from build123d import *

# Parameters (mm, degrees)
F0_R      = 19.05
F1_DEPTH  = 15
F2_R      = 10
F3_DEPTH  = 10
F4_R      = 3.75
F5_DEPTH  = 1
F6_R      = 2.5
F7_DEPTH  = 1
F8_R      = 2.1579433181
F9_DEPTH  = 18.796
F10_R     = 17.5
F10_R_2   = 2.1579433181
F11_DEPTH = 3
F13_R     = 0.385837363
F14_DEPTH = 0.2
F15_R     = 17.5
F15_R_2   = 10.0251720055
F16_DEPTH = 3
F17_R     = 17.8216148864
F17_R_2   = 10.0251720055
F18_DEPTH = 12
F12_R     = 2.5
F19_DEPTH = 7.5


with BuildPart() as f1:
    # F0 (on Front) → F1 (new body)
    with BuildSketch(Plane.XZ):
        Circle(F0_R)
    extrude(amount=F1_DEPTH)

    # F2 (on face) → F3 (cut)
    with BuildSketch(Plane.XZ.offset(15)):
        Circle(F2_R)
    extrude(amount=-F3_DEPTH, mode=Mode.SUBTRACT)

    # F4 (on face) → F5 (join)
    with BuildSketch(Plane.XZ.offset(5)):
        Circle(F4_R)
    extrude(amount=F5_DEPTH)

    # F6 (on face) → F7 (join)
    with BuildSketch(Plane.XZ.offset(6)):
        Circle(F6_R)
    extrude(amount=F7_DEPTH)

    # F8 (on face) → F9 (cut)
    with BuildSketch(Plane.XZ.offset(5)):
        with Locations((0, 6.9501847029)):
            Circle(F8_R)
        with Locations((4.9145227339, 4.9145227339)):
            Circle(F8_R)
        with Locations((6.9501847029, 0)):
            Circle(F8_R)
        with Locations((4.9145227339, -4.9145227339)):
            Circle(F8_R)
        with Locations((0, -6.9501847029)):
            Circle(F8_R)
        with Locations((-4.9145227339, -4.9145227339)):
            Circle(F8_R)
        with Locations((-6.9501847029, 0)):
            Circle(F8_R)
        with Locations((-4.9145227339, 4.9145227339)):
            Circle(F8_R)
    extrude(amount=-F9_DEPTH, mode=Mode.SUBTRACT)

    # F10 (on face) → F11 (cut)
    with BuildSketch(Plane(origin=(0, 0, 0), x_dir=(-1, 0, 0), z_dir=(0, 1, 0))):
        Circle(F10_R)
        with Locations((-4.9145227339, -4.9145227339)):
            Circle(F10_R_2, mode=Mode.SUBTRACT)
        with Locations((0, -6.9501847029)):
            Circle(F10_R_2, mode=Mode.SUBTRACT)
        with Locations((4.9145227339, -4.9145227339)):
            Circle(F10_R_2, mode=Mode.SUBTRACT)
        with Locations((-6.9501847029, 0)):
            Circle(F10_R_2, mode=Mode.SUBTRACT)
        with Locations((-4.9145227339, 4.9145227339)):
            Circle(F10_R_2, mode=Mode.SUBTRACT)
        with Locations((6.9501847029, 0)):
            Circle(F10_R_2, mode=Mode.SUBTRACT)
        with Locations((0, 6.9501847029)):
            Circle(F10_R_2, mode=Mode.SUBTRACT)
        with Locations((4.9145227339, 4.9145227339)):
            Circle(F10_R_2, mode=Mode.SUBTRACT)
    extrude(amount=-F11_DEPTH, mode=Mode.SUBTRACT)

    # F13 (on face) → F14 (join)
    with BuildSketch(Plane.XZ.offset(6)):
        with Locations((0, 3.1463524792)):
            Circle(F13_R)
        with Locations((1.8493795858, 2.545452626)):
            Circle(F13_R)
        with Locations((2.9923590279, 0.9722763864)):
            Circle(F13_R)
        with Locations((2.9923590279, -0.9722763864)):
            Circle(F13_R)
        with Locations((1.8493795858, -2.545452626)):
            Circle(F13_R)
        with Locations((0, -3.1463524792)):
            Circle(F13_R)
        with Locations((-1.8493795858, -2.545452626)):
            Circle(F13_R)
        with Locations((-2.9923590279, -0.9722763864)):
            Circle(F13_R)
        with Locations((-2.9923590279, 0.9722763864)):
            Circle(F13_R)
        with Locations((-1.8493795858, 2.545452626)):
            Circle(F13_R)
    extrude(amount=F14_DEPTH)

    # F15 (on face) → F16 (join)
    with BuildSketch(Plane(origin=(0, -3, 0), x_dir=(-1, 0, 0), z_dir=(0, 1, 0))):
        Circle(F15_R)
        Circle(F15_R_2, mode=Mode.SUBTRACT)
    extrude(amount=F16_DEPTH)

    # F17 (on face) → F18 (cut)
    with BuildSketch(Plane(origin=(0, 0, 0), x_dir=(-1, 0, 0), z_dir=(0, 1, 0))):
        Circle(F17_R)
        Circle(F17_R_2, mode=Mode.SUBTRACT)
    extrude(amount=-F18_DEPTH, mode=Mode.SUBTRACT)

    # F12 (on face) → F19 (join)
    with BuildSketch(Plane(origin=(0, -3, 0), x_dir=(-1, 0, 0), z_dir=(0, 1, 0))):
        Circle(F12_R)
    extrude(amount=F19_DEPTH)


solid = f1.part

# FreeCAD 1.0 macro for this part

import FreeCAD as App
import Part
import Sketcher
from FreeCAD import Vector
Q = App.Units.Quantity

doc = App.newDocument("Part")
body = doc.addObject("PartDesign::Body", "Body")

# Sketch on XZ plane
sketch1 = body.newObject("Sketcher::SketchObject", "Sketch")
sketch1.AttachmentSupport = (doc.getObject("XZ_Plane"), [""])
sketch1.MapMode = "FlatFace"
sketch1.addGeometry(Part.Circle(Vector(0, 0, 0), Vector(0, 0, 1), 19), False)
sketch1.addConstraint([
    Sketcher.Constraint("Coincident", 0, 3, -1, 1),
    Sketcher.Constraint("Diameter", 0, Q("38.1 mm")),
])
pad1 = body.newObject("PartDesign::Pad", "Pad")
pad1.Profile = sketch1
pad1.Length = 15

# Sketch on XZ plane
sketch2 = body.newObject("Sketcher::SketchObject", "Sketch001")
sketch2.AttachmentSupport = (doc.getObject("XZ_Plane"), [""])
sketch2.MapMode = "FlatFace"
sketch2.AttachmentOffset = App.Placement(Vector(0, 0, 15), App.Rotation())
sketch2.addGeometry(Part.Circle(Vector(0, 0, 0), Vector(0, 0, 1), 10), False)
sketch2.addConstraint([
    Sketcher.Constraint("Coincident", 0, 3, -1, 1),
    Sketcher.Constraint("Diameter", 0, Q("20 mm")),
])
pocket1 = body.newObject("PartDesign::Pocket", "Pocket")
pocket1.Profile = sketch2
pocket1.Length = 10

# Sketch on XZ plane
sketch3 = body.newObject("Sketcher::SketchObject", "Sketch002")
sketch3.AttachmentSupport = (doc.getObject("XZ_Plane"), [""])
sketch3.MapMode = "FlatFace"
sketch3.AttachmentOffset = App.Placement(Vector(0, 0, 5), App.Rotation())
sketch3.addGeometry(Part.Circle(Vector(0, 0, 0), Vector(0, 0, 1), 3.8), False)
sketch3.addConstraint([
    Sketcher.Constraint("Coincident", 0, 3, -1, 1),
    Sketcher.Constraint("Diameter", 0, Q("7.5 mm")),
])
pad2 = body.newObject("PartDesign::Pad", "Pad001")
pad2.Profile = sketch3
pad2.Length = 1

# Sketch on XZ plane
sketch4 = body.newObject("Sketcher::SketchObject", "Sketch003")
sketch4.AttachmentSupport = (doc.getObject("XZ_Plane"), [""])
sketch4.MapMode = "FlatFace"
sketch4.AttachmentOffset = App.Placement(Vector(0, 0, 6), App.Rotation())
sketch4.addGeometry(Part.Circle(Vector(0, 0, 0), Vector(0, 0, 1), 2.5), False)
sketch4.addConstraint([
    Sketcher.Constraint("Coincident", 0, 3, -1, 1),
    Sketcher.Constraint("Diameter", 0, Q("5 mm")),
])
pad3 = body.newObject("PartDesign::Pad", "Pad002")
pad3.Profile = sketch4
pad3.Length = 1

# Sketch on XZ plane
sketch5 = body.newObject("Sketcher::SketchObject", "Sketch004")
sketch5.AttachmentSupport = (doc.getObject("XZ_Plane"), [""])
sketch5.MapMode = "FlatFace"
sketch5.AttachmentOffset = App.Placement(Vector(0, 0, 5), App.Rotation())
sketch5.addGeometry([
    Part.Circle(Vector(0, 7, 0), Vector(0, 0, 1), 2.2),  # 0
    Part.Circle(Vector(4.9, 4.9, 0), Vector(0, 0, 1), 2.2),  # 1
    Part.Circle(Vector(7, 0, 0), Vector(0, 0, 1), 2.2),  # 2
    Part.Circle(Vector(4.9, -4.9, 0), Vector(0, 0, 1), 2.2),  # 3
    Part.Circle(Vector(0, -7, 0), Vector(0, 0, 1), 2.2),  # 4
    Part.Circle(Vector(-4.9, -4.9, 0), Vector(0, 0, 1), 2.2),  # 5
    Part.Circle(Vector(-7, 0, 0), Vector(0, 0, 1), 2.2),  # 6
    Part.Circle(Vector(-4.9, 4.9, 0), Vector(0, 0, 1), 2.2),  # 7
], False)
sketch5.addConstraint([
    Sketcher.Constraint("Equal", 0, 1),
    Sketcher.Constraint("Equal", 1, 2),
    Sketcher.Constraint("Equal", 2, 3),
    Sketcher.Constraint("Equal", 3, 4),
    Sketcher.Constraint("Equal", 4, 5),
    Sketcher.Constraint("Equal", 5, 6),
    Sketcher.Constraint("Equal", 6, 7),
    Sketcher.Constraint("Symmetric", 0, 3, 4, 3, -1, 1),
    Sketcher.Constraint("Symmetric", 1, 3, 5, 3, -1, 1),
    Sketcher.Constraint("Symmetric", 2, 3, 6, 3, -1, 1),
    Sketcher.Constraint("Symmetric", 3, 3, 7, 3, -1, 1),
    Sketcher.Constraint("Symmetric", 3, 3, 5, 3, -2),
    Sketcher.Constraint("PointOnObject", 0, 3, -2),
    Sketcher.Constraint("PointOnObject", 2, 3, -1),
    Sketcher.Constraint("Diameter", 0, Q("4.315887 mm")),
    Sketcher.Constraint("DistanceY", 1, 3, 0, 3, Q("2.035662 mm")),
    Sketcher.Constraint("DistanceX", 1, 3, 2, 3, Q("2.035662 mm")),
    Sketcher.Constraint("DistanceY", 4, 3, 0, 3, Q("13.900369 mm")),
    Sketcher.Constraint("DistanceX", -1, 1, 1, 3, Q("4.914523 mm")),
])
pocket2 = body.newObject("PartDesign::Pocket", "Pocket001")
pocket2.Profile = sketch5
pocket2.Length = 18.796

# Sketch on XZ plane
sketch6 = body.newObject("Sketcher::SketchObject", "Sketch005")
sketch6.AttachmentSupport = (doc.getObject("XZ_Plane"), [""])
sketch6.MapMode = "FlatFace"
sketch6.addGeometry([
    Part.Circle(Vector(0, 0, 0), Vector(0, 0, 1), 17.5),  # 0
    Part.Circle(Vector(4.9, -4.9, 0), Vector(0, 0, 1), 2.2),  # 1
    Part.Circle(Vector(0, -7, 0), Vector(0, 0, 1), 2.2),  # 2
    Part.Circle(Vector(-4.9, -4.9, 0), Vector(0, 0, 1), 2.2),  # 3
    Part.Circle(Vector(7, 0, 0), Vector(0, 0, 1), 2.2),  # 4
    Part.Circle(Vector(4.9, 4.9, 0), Vector(0, 0, 1), 2.2),  # 5
    Part.Circle(Vector(-7, 0, 0), Vector(0, 0, 1), 2.2),  # 6
    Part.Circle(Vector(0, 7, 0), Vector(0, 0, 1), 2.2),  # 7
    Part.Circle(Vector(-4.9, 4.9, 0), Vector(0, 0, 1), 2.2),  # 8
], False)
sketch6.addConstraint([
    Sketcher.Constraint("Coincident", 0, 3, -1, 1),
    Sketcher.Constraint("Equal", 1, 2),
    Sketcher.Constraint("Equal", 2, 3),
    Sketcher.Constraint("Equal", 3, 4),
    Sketcher.Constraint("Equal", 4, 5),
    Sketcher.Constraint("Equal", 5, 6),
    Sketcher.Constraint("Equal", 6, 7),
    Sketcher.Constraint("Equal", 7, 8),
    Sketcher.Constraint("Symmetric", 3, 3, 5, 3, -1, 1),
    Sketcher.Constraint("Symmetric", 4, 3, 6, 3, -1, 1),
    Sketcher.Constraint("Symmetric", 2, 3, 7, 3, -1, 1),
    Sketcher.Constraint("Symmetric", 1, 3, 8, 3, -1, 1),
    Sketcher.Constraint("Symmetric", 1, 3, 3, 3, -2),
    Sketcher.Constraint("PointOnObject", 2, 3, -2),
    Sketcher.Constraint("PointOnObject", 4, 3, -1),
    Sketcher.Constraint("Diameter", 0, Q("35 mm")),
    Sketcher.Constraint("Diameter", 1, Q("4.315887 mm")),
    Sketcher.Constraint("DistanceY", 2, 3, 1, 3, Q("2.035662 mm")),
    Sketcher.Constraint("DistanceX", 1, 3, 4, 3, Q("2.035662 mm")),
    Sketcher.Constraint("DistanceX", -1, 1, 1, 3, Q("4.914523 mm")),
    Sketcher.Constraint("DistanceY", 1, 3, -1, 1, Q("4.914523 mm")),
])
pocket3 = body.newObject("PartDesign::Pocket", "Pocket002")
pocket3.Profile = sketch6
pocket3.Length = 3
pocket3.Reversed = True

# Sketch on XZ plane
sketch7 = body.newObject("Sketcher::SketchObject", "Sketch006")
sketch7.AttachmentSupport = (doc.getObject("XZ_Plane"), [""])
sketch7.MapMode = "FlatFace"
sketch7.AttachmentOffset = App.Placement(Vector(0, 0, 6), App.Rotation())
sketch7.addGeometry([
    Part.Circle(Vector(0, 3.15, 0), Vector(0, 0, 1), 0.39),  # 0
    Part.Circle(Vector(1.85, 2.55, 0), Vector(0, 0, 1), 0.39),  # 1
    Part.Circle(Vector(2.99, 0.97, 0), Vector(0, 0, 1), 0.39),  # 2
    Part.Circle(Vector(2.99, -0.97, 0), Vector(0, 0, 1), 0.39),  # 3
    Part.Circle(Vector(1.85, -2.55, 0), Vector(0, 0, 1), 0.39),  # 4
    Part.Circle(Vector(0, -3.15, 0), Vector(0, 0, 1), 0.39),  # 5
    Part.Circle(Vector(-1.85, -2.55, 0), Vector(0, 0, 1), 0.39),  # 6
    Part.Circle(Vector(-2.99, -0.97, 0), Vector(0, 0, 1), 0.39),  # 7
    Part.Circle(Vector(-2.99, 0.97, 0), Vector(0, 0, 1), 0.39),  # 8
    Part.Circle(Vector(-1.85, 2.55, 0), Vector(0, 0, 1), 0.39),  # 9
], False)
sketch7.addConstraint([
    Sketcher.Constraint("Equal", 0, 1),
    Sketcher.Constraint("Equal", 1, 2),
    Sketcher.Constraint("Equal", 2, 3),
    Sketcher.Constraint("Equal", 3, 4),
    Sketcher.Constraint("Equal", 4, 5),
    Sketcher.Constraint("Equal", 5, 6),
    Sketcher.Constraint("Equal", 6, 7),
    Sketcher.Constraint("Equal", 7, 8),
    Sketcher.Constraint("Equal", 8, 9),
    Sketcher.Constraint("Symmetric", 0, 3, 5, 3, -1, 1),
    Sketcher.Constraint("Symmetric", 1, 3, 6, 3, -1, 1),
    Sketcher.Constraint("Symmetric", 2, 3, 7, 3, -1, 1),
    Sketcher.Constraint("Symmetric", 3, 3, 8, 3, -1, 1),
    Sketcher.Constraint("Symmetric", 4, 3, 9, 3, -1, 1),
    Sketcher.Constraint("Symmetric", 4, 3, 6, 3, -2),
    Sketcher.Constraint("Symmetric", 3, 3, 7, 3, -2),
    Sketcher.Constraint("PointOnObject", 0, 3, -2),
    Sketcher.Constraint("Diameter", 0, Q("0.771675 mm")),
    Sketcher.Constraint("DistanceY", 1, 3, 0, 3, Q("0.6009 mm")),
    Sketcher.Constraint("DistanceX", -1, 1, 1, 3, Q("1.84938 mm")),
    Sketcher.Constraint("DistanceX", -1, 1, 2, 3, Q("2.992359 mm")),
    Sketcher.Constraint("DistanceY", 3, 3, 1, 3, Q("3.517729 mm")),
    Sketcher.Constraint("DistanceY", -1, 1, 0, 3, Q("3.146352 mm")),
])
pad4 = body.newObject("PartDesign::Pad", "Pad003")
pad4.Profile = sketch7
pad4.Length = 0.2

# Sketch on XZ plane
sketch8 = body.newObject("Sketcher::SketchObject", "Sketch007")
sketch8.AttachmentSupport = (doc.getObject("XZ_Plane"), [""])
sketch8.MapMode = "FlatFace"
sketch8.AttachmentOffset = App.Placement(Vector(0, 0, 3), App.Rotation())
sketch8.addGeometry([
    Part.Circle(Vector(0, 0, 0), Vector(0, 0, 1), 18),
    Part.Circle(Vector(0, 0, 0), Vector(0, 0, 1), 10),
], False)
sketch8.addConstraint([
    Sketcher.Constraint("Coincident", 0, 3, -1, 1),
    Sketcher.Constraint("Coincident", 1, 3, -1, 1),
    Sketcher.Constraint("Diameter", 0, Q("35 mm")),
    Sketcher.Constraint("Diameter", 1, Q("20.050344 mm")),
])
pad5 = body.newObject("PartDesign::Pad", "Pad004")
pad5.Profile = sketch8
pad5.Length = 3
pad5.Reversed = True

# Sketch on XZ plane
sketch9 = body.newObject("Sketcher::SketchObject", "Sketch008")
sketch9.AttachmentSupport = (doc.getObject("XZ_Plane"), [""])
sketch9.MapMode = "FlatFace"
sketch9.addGeometry([
    Part.Circle(Vector(0, 0, 0), Vector(0, 0, 1), 18),
    Part.Circle(Vector(0, 0, 0), Vector(0, 0, 1), 10),
], False)
sketch9.addConstraint([
    Sketcher.Constraint("Coincident", 0, 3, -1, 1),
    Sketcher.Constraint("Coincident", 1, 3, -1, 1),
    Sketcher.Constraint("Diameter", 0, Q("35.64323 mm")),
    Sketcher.Constraint("Diameter", 1, Q("20.050344 mm")),
])
pocket4 = body.newObject("PartDesign::Pocket", "Pocket003")
pocket4.Profile = sketch9
pocket4.Length = 12
pocket4.Reversed = True

# Sketch on XZ plane
sketch10 = body.newObject("Sketcher::SketchObject", "Sketch009")
sketch10.AttachmentSupport = (doc.getObject("XZ_Plane"), [""])
sketch10.MapMode = "FlatFace"
sketch10.AttachmentOffset = App.Placement(Vector(0, 0, 3), App.Rotation())
sketch10.addGeometry(Part.Circle(Vector(0, 0, 0), Vector(0, 0, 1), 2.5), False)
sketch10.addConstraint([
    Sketcher.Constraint("Coincident", 0, 3, -1, 1),
    Sketcher.Constraint("Diameter", 0, Q("5 mm")),
])
pad6 = body.newObject("PartDesign::Pad", "Pad005")
pad6.Profile = sketch10
pad6.Length = 7.5
pad6.Reversed = True

doc.recompute()
